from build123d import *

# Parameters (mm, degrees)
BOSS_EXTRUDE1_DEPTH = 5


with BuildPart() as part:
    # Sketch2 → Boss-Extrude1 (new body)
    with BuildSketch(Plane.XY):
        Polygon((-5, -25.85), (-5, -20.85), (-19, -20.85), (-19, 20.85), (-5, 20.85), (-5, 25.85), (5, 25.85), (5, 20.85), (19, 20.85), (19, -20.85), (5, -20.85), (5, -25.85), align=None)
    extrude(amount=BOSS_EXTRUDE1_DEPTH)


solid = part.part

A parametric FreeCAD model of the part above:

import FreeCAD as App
import Part
import Sketcher

V = App.Vector


def add_polygon(sketch, points):
    """Adds a closed chain of lines whose ends are joined by coincident constraints."""
    first, n = sketch.GeometryCount, len(points)
    for a, b in zip(points, points[1:] + points[:1]):
        sketch.addGeometry(Part.LineSegment(App.Vector(*a, 0), App.Vector(*b, 0)), False)
    for i in range(n):
        sketch.addConstraint(Sketcher.Constraint("Coincident", first + i, 2, first + (i + 1) % n, 1))

doc = App.newDocument("Part")
params = doc.addObject("Spreadsheet::Sheet", "Params")
for row, (alias, value) in enumerate([
    ("sketch1_width", "10 mm"),
    ("sketch1_width2", "14 mm"),
    ("sketch1_height", "5 mm"),
    ("sketch1_height2", "41.7 mm"),
    ("pad1_length", "5 mm"),
], start=1):
    params.set(f"A{row}", alias)
    params.set(f"B{row}", "=" + value)
    params.setAlias(f"B{row}", alias)

body = doc.addObject("PartDesign::Body", "Body")

# Sketch on XY plane
sketch1 = body.newObject("Sketcher::SketchObject", "Sketch")
sketch1.AttachmentSupport = (doc.getObject("XY_Plane"), [""])
sketch1.MapMode = "FlatFace"
add_polygon(sketch1, [(-5, -21), (-5, -26), (5, -26), (5, -21), (19, -21), (19, 21), (5, 21), (5, 26), (-5, 26), (-5, 21), (-19, 21), (-19, -21)])  # lines 0-11
sketch1.addConstraint([
    Sketcher.Constraint("Vertical", 0),
    Sketcher.Constraint("Horizontal", 1),
    Sketcher.Constraint("Vertical", 2),
    Sketcher.Constraint("Horizontal", 3),
    Sketcher.Constraint("Vertical", 4),
    Sketcher.Constraint("Horizontal", 5),
    Sketcher.Constraint("Vertical", 6),
    Sketcher.Constraint("Horizontal", 7),
    Sketcher.Constraint("Vertical", 8),
    Sketcher.Constraint("Horizontal", 9),
    Sketcher.Constraint("Vertical", 10),
    Sketcher.Constraint("Horizontal", 11),
    Sketcher.Constraint("Symmetric", 0, 2, 6, 2, -1, 1),
    Sketcher.Constraint("Symmetric", 2, 2, 8, 2, -1, 1),
    Sketcher.Constraint("Symmetric", 4, 2, 10, 2, -1, 1),
    Sketcher.Constraint("Symmetric", 5, 2, 8, 2, -2),
    Sketcher.Constraint("DistanceX", 1, 1, 1, 2, 10.0),
    Sketcher.Constraint("DistanceX", 3, 1, 3, 2, 14.0),
    Sketcher.Constraint("DistanceY", 0, 2, 0, 1, 5.0),
    Sketcher.Constraint("DistanceY", 4, 1, 4, 2, 41.7),
])
sketch1.setExpression("Constraints[28]", "Params.sketch1_width")
sketch1.setExpression("Constraints[29]", "Params.sketch1_width2")
sketch1.setExpression("Constraints[30]", "Params.sketch1_height")
sketch1.setExpression("Constraints[31]", "Params.sketch1_height2")
pad1 = body.newObject("PartDesign::Pad", "Pad")
pad1.Profile = sketch1
pad1.setExpression("Length", "Params.pad1_length")

doc.recompute()
